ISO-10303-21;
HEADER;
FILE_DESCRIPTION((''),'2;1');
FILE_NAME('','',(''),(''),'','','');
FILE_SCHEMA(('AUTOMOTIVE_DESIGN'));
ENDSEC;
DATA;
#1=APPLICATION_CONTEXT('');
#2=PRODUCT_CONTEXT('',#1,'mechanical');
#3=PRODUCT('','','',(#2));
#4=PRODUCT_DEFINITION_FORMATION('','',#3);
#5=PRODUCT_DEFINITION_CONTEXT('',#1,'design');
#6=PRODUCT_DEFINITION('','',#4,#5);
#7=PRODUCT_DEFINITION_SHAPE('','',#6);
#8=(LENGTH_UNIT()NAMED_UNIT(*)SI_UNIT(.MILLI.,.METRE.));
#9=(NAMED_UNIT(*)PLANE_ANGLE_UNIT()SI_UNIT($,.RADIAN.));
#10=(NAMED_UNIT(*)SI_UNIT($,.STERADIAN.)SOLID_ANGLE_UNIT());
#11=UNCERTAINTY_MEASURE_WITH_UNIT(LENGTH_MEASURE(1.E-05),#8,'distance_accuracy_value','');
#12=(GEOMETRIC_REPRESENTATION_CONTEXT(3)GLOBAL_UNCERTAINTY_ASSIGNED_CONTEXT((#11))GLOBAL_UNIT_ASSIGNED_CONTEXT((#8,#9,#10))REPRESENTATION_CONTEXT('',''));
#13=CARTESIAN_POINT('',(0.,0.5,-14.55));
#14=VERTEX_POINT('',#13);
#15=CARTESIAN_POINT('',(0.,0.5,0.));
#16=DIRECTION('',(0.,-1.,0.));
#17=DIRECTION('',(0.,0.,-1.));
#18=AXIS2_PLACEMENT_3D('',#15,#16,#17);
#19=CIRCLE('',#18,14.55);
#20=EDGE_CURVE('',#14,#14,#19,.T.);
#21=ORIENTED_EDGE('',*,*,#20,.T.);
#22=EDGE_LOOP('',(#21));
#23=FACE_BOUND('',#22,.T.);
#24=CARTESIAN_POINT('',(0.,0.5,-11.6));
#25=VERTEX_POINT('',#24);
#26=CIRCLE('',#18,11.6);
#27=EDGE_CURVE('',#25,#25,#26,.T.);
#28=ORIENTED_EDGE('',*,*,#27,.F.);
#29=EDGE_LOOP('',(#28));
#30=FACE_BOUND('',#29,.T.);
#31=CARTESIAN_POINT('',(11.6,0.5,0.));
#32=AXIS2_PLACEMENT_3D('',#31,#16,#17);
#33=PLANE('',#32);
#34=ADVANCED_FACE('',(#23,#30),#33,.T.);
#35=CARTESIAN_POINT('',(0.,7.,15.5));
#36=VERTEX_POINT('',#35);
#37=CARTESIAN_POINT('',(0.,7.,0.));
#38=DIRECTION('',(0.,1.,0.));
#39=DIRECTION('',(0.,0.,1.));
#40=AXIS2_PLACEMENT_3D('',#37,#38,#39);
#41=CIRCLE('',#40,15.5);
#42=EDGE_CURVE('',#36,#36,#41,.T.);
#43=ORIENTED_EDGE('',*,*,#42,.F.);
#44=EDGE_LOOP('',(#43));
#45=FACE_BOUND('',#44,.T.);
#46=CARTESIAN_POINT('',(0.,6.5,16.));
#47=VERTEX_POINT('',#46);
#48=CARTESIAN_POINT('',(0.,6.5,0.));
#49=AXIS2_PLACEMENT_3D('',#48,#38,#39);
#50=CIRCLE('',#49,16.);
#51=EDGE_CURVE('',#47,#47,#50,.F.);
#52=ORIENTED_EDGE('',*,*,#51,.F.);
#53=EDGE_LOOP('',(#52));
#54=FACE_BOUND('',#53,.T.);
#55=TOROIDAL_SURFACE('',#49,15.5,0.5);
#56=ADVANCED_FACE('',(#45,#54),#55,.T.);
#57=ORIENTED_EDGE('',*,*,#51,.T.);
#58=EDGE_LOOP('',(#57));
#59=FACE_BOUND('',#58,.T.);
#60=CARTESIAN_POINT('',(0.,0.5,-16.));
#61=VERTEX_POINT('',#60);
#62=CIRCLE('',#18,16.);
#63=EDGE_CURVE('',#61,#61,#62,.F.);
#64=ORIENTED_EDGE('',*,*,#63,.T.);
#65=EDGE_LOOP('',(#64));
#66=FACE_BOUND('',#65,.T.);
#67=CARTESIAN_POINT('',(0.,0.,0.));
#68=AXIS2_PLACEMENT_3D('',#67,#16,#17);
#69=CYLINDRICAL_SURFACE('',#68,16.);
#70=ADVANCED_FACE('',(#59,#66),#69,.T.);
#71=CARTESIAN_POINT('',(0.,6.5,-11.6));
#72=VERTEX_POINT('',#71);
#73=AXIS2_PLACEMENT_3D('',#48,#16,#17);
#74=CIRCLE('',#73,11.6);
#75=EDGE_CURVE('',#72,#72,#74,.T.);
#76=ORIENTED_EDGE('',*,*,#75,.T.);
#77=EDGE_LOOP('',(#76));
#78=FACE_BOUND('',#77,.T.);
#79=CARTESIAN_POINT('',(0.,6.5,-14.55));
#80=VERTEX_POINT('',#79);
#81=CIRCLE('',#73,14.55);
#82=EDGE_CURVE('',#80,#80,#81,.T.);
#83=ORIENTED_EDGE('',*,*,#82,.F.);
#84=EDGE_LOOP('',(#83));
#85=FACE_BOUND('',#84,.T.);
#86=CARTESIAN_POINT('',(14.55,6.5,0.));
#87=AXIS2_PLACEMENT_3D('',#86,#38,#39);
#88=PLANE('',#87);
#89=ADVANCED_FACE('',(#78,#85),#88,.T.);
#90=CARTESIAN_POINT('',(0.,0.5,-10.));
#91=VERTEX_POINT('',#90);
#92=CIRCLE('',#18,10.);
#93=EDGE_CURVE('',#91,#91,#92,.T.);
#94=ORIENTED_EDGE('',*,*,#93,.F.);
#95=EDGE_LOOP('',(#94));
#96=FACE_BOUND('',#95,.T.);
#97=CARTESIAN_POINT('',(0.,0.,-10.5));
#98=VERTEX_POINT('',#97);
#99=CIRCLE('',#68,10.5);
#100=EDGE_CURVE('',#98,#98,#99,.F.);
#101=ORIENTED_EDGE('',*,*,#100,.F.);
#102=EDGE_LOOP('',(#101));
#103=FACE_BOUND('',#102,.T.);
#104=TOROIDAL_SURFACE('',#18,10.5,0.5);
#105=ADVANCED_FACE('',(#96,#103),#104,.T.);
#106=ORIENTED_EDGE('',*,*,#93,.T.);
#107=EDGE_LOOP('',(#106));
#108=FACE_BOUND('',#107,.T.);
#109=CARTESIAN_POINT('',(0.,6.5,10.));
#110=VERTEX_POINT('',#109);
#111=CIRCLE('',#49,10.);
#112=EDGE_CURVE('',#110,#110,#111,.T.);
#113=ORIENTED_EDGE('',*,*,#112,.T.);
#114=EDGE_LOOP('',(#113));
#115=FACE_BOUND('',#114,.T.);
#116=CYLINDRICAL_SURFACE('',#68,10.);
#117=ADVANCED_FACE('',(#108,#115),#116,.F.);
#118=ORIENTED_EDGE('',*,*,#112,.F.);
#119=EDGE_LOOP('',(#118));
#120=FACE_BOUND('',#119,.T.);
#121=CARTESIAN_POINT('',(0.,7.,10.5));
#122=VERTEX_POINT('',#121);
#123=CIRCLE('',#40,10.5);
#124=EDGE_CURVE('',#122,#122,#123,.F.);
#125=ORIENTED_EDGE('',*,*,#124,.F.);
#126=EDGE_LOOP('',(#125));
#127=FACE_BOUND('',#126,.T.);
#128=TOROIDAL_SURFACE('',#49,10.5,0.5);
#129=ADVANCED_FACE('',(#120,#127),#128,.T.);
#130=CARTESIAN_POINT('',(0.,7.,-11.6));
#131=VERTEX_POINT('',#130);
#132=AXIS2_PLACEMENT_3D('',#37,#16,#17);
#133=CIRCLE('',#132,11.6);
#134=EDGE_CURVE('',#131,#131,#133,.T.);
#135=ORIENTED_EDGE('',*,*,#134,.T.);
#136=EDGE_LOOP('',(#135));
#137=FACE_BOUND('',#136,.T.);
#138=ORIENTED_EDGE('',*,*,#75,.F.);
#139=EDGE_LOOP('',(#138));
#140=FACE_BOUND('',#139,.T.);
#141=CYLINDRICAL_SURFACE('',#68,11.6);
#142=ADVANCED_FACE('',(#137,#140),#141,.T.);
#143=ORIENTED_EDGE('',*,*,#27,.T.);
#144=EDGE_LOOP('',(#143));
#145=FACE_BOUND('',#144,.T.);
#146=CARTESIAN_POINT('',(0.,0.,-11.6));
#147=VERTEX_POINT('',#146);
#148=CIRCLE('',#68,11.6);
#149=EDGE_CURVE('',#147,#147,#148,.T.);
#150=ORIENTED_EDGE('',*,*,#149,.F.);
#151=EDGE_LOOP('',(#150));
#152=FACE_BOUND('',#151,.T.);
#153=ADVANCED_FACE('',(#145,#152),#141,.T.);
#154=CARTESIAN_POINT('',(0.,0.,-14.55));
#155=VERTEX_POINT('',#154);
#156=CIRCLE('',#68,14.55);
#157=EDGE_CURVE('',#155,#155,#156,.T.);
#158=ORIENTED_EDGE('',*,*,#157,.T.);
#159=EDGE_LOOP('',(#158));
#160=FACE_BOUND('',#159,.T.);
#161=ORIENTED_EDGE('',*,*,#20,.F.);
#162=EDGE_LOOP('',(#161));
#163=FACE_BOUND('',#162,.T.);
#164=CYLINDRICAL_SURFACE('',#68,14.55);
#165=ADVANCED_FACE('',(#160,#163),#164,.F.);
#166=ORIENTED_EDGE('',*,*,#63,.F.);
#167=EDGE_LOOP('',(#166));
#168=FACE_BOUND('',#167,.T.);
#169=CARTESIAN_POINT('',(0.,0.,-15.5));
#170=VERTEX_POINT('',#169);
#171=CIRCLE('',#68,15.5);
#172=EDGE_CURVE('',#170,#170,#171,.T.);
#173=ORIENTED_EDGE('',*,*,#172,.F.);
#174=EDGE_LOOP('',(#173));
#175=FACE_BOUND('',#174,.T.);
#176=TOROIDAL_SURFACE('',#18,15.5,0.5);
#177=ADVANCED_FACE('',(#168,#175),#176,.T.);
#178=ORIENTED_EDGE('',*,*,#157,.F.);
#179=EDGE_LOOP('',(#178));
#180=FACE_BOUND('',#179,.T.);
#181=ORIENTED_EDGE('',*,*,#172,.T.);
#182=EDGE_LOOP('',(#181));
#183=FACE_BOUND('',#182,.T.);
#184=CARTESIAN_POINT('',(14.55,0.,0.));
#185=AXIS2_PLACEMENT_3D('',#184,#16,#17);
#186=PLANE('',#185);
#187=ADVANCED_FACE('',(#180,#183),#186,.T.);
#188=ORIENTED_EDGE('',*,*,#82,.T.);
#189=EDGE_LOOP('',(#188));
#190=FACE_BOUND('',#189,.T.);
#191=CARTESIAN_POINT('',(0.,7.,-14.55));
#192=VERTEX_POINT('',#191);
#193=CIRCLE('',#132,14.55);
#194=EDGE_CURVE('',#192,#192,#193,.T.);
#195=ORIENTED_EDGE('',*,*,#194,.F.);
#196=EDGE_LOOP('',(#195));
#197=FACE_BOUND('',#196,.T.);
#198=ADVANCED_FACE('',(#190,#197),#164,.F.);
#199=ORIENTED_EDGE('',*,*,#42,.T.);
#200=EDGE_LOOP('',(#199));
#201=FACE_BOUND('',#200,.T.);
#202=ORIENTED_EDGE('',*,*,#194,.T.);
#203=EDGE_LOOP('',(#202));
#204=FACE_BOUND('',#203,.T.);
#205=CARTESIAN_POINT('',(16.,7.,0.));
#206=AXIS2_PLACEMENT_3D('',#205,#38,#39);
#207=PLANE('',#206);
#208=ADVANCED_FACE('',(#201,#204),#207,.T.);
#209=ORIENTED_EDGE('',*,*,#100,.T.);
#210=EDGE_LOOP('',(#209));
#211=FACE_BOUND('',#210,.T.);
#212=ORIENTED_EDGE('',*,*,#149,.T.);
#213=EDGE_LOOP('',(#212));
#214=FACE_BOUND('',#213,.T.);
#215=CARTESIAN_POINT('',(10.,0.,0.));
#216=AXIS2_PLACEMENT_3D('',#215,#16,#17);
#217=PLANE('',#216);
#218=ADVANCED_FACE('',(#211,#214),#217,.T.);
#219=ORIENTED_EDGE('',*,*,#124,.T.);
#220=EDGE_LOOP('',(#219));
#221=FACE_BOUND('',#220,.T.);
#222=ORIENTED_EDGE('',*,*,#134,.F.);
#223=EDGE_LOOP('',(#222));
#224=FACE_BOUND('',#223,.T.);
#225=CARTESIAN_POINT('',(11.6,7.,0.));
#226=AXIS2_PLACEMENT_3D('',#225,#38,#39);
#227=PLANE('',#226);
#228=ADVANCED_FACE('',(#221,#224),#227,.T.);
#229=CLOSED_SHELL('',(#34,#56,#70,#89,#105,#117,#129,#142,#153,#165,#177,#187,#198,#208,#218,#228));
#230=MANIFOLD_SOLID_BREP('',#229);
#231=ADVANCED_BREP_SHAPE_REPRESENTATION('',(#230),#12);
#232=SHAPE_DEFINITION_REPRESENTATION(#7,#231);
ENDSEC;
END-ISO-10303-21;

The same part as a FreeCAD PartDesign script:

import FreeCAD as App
import Part
import Sketcher

V = App.Vector
Q = App.Units.Quantity


def edges_at(feature, points):
    """Names of the edges that pass closest to the given points."""
    edges = feature.Shape.Edges
    near = lambda p: min(range(len(edges)), key=lambda i: edges[i].distToShape(Part.Vertex(*p))[0])
    return sorted({f"Edge{near(p) + 1}" for p in points})


def add_polygon(sketch, points):
    """Adds a closed chain of lines whose ends are joined by coincident constraints."""
    first, n = sketch.GeometryCount, len(points)
    for a, b in zip(points, points[1:] + points[:1]):
        sketch.addGeometry(Part.LineSegment(App.Vector(*a, 0), App.Vector(*b, 0)), False)
    for i in range(n):
        sketch.addConstraint(Sketcher.Constraint("Coincident", first + i, 2, first + (i + 1) % n, 1))

doc = App.newDocument("Part")
body = doc.addObject("PartDesign::Body", "Body")

sketch1 = body.newObject("Sketcher::SketchObject", "Sketch")
sketch1.AttachmentSupport = (doc.getObject("XY_Plane"), [""])
sketch1.MapMode = "FlatFace"
add_polygon(sketch1, [(10, 0), (11.6, 0), (11.6, 0.5), (14.55, 0.5), (14.55, 0), (16, 0), (16, 7), (14.55, 7), (14.55, 6.5), (11.6, 6.5), (11.6, 7), (10, 7)])
sketch1.addConstraint(Sketcher.Constraint("Horizontal", 0))
sketch1.addConstraint(Sketcher.Constraint("Vertical", 1))
sketch1.addConstraint(Sketcher.Constraint("Horizontal", 2))
sketch1.addConstraint(Sketcher.Constraint("Vertical", 3))
sketch1.addConstraint(Sketcher.Constraint("Horizontal", 4))
sketch1.addConstraint(Sketcher.Constraint("Vertical", 5))
sketch1.addConstraint(Sketcher.Constraint("Horizontal", 6))
sketch1.addConstraint(Sketcher.Constraint("Vertical", 7))
sketch1.addConstraint(Sketcher.Constraint("Horizontal", 8))
sketch1.addConstraint(Sketcher.Constraint("Vertical", 9))
sketch1.addConstraint(Sketcher.Constraint("Horizontal", 10))
sketch1.addConstraint(Sketcher.Constraint("Vertical", 11))
sketch1.addConstraint(Sketcher.Constraint("PointOnObject", 0, 2, -1))
sketch1.addConstraint(Sketcher.Constraint("PointOnObject", 3, 2, -1))
sketch1.addConstraint(Sketcher.Constraint("Horizontal", 6, 2, 9, 2))
sketch1.addConstraint(Sketcher.Constraint("Vertical", 3, 2, 6, 2))
sketch1.addConstraint(Sketcher.Constraint("Vertical", 1, 2, 8, 2))
sketch1.addConstraint(Sketcher.Constraint("Equal", 3, 7))
sketch1.addConstraint(Sketcher.Constraint("DistanceY", 5, 1, 5, 2, Q("7 mm")))
sketch1.addConstraint(Sketcher.Constraint("DistanceX", 0, 1, 0, 2, Q("1.6 mm")))
sketch1.addConstraint(Sketcher.Constraint("DistanceY", 1, 1, 1, 2, Q("0.5 mm")))
sketch1.addConstraint(Sketcher.Constraint("DistanceX", -1, 1, 4, 2, Q("16 mm")))
sketch1.addConstraint(Sketcher.Constraint("DistanceX", -1, 1, 10, 2, Q("10 mm")))
sketch1.addConstraint(Sketcher.Constraint("DistanceX", 2, 1, 2, 2, Q("2.95 mm")))
revolution = body.newObject("PartDesign::Revolution", "Revolution")
revolution.Profile = sketch1
revolution.ReferenceAxis = (sketch1, ["V_Axis"])
revolution.Angle = 360
doc.recompute()

fillet = body.newObject("PartDesign::Fillet", "Fillet")
fillet.Base = (revolution, edges_at(revolution, [
    (0, 7, 16),
    (0, 0, 16),
    (0, 0, 10),
    (0, 7, 10),
]))
fillet.Radius = 0.5

doc.recompute()
